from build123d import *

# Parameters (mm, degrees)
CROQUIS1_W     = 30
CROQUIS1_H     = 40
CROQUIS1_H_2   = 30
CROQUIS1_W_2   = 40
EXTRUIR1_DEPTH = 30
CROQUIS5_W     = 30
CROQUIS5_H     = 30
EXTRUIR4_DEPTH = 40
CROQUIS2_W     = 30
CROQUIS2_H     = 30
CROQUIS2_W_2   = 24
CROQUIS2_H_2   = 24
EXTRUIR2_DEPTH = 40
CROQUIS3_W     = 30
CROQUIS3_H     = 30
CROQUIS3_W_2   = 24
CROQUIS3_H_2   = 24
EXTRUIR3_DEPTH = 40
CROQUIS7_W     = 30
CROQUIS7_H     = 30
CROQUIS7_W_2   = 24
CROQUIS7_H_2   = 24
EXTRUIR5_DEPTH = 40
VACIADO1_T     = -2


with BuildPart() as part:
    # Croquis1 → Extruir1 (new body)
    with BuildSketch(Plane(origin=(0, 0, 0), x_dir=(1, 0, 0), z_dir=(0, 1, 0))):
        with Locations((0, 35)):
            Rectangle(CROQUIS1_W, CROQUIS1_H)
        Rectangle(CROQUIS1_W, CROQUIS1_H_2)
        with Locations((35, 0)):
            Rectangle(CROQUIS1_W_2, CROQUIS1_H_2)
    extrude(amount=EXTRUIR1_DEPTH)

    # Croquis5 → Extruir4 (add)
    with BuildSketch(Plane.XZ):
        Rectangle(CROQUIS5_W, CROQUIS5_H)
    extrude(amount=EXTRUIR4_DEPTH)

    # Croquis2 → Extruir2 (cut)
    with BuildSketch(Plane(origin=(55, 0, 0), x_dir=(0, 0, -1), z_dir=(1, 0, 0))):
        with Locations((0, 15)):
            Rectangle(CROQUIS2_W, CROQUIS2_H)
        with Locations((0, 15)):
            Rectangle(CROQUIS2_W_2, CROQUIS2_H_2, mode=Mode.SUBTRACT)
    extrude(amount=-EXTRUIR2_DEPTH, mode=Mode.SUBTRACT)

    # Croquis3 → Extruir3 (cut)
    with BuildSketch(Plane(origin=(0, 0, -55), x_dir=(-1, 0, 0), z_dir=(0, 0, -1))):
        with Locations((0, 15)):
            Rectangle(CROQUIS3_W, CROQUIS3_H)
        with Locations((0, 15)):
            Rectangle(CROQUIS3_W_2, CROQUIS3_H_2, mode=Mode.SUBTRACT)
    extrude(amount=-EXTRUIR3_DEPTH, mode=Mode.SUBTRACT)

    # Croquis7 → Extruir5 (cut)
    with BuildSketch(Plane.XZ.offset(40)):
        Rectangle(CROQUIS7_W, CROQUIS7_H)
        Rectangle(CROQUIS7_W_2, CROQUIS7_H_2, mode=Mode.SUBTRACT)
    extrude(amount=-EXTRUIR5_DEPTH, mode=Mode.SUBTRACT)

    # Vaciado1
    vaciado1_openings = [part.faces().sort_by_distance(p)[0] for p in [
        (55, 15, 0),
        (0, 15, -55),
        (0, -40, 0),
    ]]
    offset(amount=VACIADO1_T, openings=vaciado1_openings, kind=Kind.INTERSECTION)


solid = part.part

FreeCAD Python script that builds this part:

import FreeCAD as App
import Part
import Sketcher

V = App.Vector
Q = App.Units.Quantity


def faces_at(feature, points):
    """Names of the faces that lie closest to the given points."""
    faces = feature.Shape.Faces
    near = lambda p: min(range(len(faces)), key=lambda i: faces[i].distToShape(Part.Vertex(*p))[0])
    return sorted({f"Face{near(p) + 1}" for p in points})


def add_polygon(sketch, points):
    """Adds a closed chain of lines whose ends are joined by coincident constraints."""
    first, n = sketch.GeometryCount, len(points)
    for a, b in zip(points, points[1:] + points[:1]):
        sketch.addGeometry(Part.LineSegment(App.Vector(*a, 0), App.Vector(*b, 0)), False)
    for i in range(n):
        sketch.addConstraint(Sketcher.Constraint("Coincident", first + i, 2, first + (i + 1) % n, 1))

doc = App.newDocument("Part")
body = doc.addObject("PartDesign::Body", "Body")

sketch1 = body.newObject("Sketcher::SketchObject", "Sketch")
sketch1.AttachmentSupport = (doc.getObject("XZ_Plane"), [""])
sketch1.MapMode = "FlatFace"
add_polygon(sketch1, [(-15, -55), (-15, 15), (55, 15), (55, -15), (15, -15), (15, -55)])
sketch1.addConstraint(Sketcher.Constraint("Vertical", 0))
sketch1.addConstraint(Sketcher.Constraint("Horizontal", 1))
sketch1.addConstraint(Sketcher.Constraint("Vertical", 2))
sketch1.addConstraint(Sketcher.Constraint("Horizontal", 3))
sketch1.addConstraint(Sketcher.Constraint("Vertical", 4))
sketch1.addConstraint(Sketcher.Constraint("Horizontal", 5))
sketch1.addConstraint(Sketcher.Constraint("Symmetric", 0, 2, 3, 2, -1, 1))
sketch1.addConstraint(Sketcher.Constraint("Equal", 1, 0))
sketch1.addConstraint(Sketcher.Constraint("Equal", 5, 2))
sketch1.addConstraint(Sketcher.Constraint("DistanceX", 1, 1, 1, 2, Q("70 mm")))
sketch1.addConstraint(Sketcher.Constraint("DistanceX", 3, 2, 3, 1, Q("40 mm")))
pad1 = body.newObject("PartDesign::Pad", "Pad")
pad1.Profile = sketch1
pad1.Length = 30
pad1.Reversed = True

sketch2 = body.newObject("Sketcher::SketchObject", "Sketch001")
sketch2.AttachmentSupport = (doc.getObject("XZ_Plane"), [""])
sketch2.MapMode = "FlatFace"
add_polygon(sketch2, [(-15, 15), (-15, -15), (15, -15), (15, 15)])
sketch2.addConstraint(Sketcher.Constraint("Vertical", 0))
sketch2.addConstraint(Sketcher.Constraint("Horizontal", 1))
sketch2.addConstraint(Sketcher.Constraint("Vertical", 2))
sketch2.addConstraint(Sketcher.Constraint("Horizontal", 3))
sketch2.addConstraint(Sketcher.Constraint("Symmetric", 0, 2, 2, 2, -1, 1))
sketch2.addConstraint(Sketcher.Constraint("Equal", 3, 0))
sketch2.addConstraint(Sketcher.Constraint("DistanceX", 1, 1, 1, 2, Q("30 mm")))
pad2 = body.newObject("PartDesign::Pad", "Pad001")
pad2.Profile = sketch2
pad2.Length = 40

sketch3 = body.newObject("Sketcher::SketchObject", "Sketch002")
sketch3.AttachmentSupport = (doc.getObject("YZ_Plane"), [""])
sketch3.MapMode = "FlatFace"
sketch3.AttachmentOffset = App.Placement(V(0, 0, 55), App.Rotation())
add_polygon(sketch3, [(30, 15), (0, 15), (0, -15), (30, -15)])
add_polygon(sketch3, [(3, -12), (3, 12), (27, 12), (27, -12)])
sketch3.addConstraint(Sketcher.Constraint("Horizontal", 0))
sketch3.addConstraint(Sketcher.Constraint("Vertical", 1))
sketch3.addConstraint(Sketcher.Constraint("Horizontal", 2))
sketch3.addConstraint(Sketcher.Constraint("Vertical", 3))
sketch3.addConstraint(Sketcher.Constraint("Vertical", 4))
sketch3.addConstraint(Sketcher.Constraint("Horizontal", 5))
sketch3.addConstraint(Sketcher.Constraint("Vertical", 6))
sketch3.addConstraint(Sketcher.Constraint("Horizontal", 7))
sketch3.addConstraint(Sketcher.Constraint("Symmetric", 0, 2, 1, 2, -1, 1))
sketch3.addConstraint(Sketcher.Constraint("Equal", 2, 1))
sketch3.addConstraint(Sketcher.Constraint("Equal", 7, 4))
sketch3.addConstraint(Sketcher.Constraint("DistanceX", 0, 2, 0, 1, Q("30 mm")))
sketch3.addConstraint(Sketcher.Constraint("DistanceX", 5, 1, 5, 2, Q("24 mm")))
sketch3.addConstraint(Sketcher.Constraint("DistanceX", -1, 1, 4, 2, Q("3 mm")))
sketch3.addConstraint(Sketcher.Constraint("DistanceY", -1, 1, 4, 2, Q("12 mm")))
pocket1 = body.newObject("PartDesign::Pocket", "Pocket")
pocket1.Profile = sketch3
pocket1.Length = 40

sketch4 = body.newObject("Sketcher::SketchObject", "Sketch003")
sketch4.AttachmentSupport = (doc.getObject("XY_Plane"), [""])
sketch4.MapMode = "FlatFace"
sketch4.AttachmentOffset = App.Placement(V(0, 0, -55), App.Rotation())
add_polygon(sketch4, [(15, 30), (15, 0), (-15, 0), (-15, 30)])
add_polygon(sketch4, [(-12, 3), (12, 3), (12, 27), (-12, 27)])
sketch4.addConstraint(Sketcher.Constraint("Vertical", 0))
sketch4.addConstraint(Sketcher.Constraint("Horizontal", 1))
sketch4.addConstraint(Sketcher.Constraint("Vertical", 2))
sketch4.addConstraint(Sketcher.Constraint("Horizontal", 3))
sketch4.addConstraint(Sketcher.Constraint("Horizontal", 4))
sketch4.addConstraint(Sketcher.Constraint("Vertical", 5))
sketch4.addConstraint(Sketcher.Constraint("Horizontal", 6))
sketch4.addConstraint(Sketcher.Constraint("Vertical", 7))
sketch4.addConstraint(Sketcher.Constraint("Symmetric", 0, 2, 1, 2, -1, 1))
sketch4.addConstraint(Sketcher.Constraint("Equal", 3, 0))
sketch4.addConstraint(Sketcher.Constraint("Equal", 6, 5))
sketch4.addConstraint(Sketcher.Constraint("DistanceX", 1, 2, 1, 1, Q("30 mm")))
sketch4.addConstraint(Sketcher.Constraint("DistanceX", 4, 1, 4, 2, Q("24 mm")))
sketch4.addConstraint(Sketcher.Constraint("DistanceX", -1, 1, 4, 2, Q("12 mm")))
sketch4.addConstraint(Sketcher.Constraint("DistanceY", -1, 1, 4, 2, Q("3 mm")))
pocket2 = body.newObject("PartDesign::Pocket", "Pocket001")
pocket2.Profile = sketch4
pocket2.Length = 40
pocket2.Reversed = True

sketch5 = body.newObject("Sketcher::SketchObject", "Sketch004")
sketch5.AttachmentSupport = (doc.getObject("XZ_Plane"), [""])
sketch5.MapMode = "FlatFace"
sketch5.AttachmentOffset = App.Placement(V(0, 0, 40), App.Rotation())
add_polygon(sketch5, [(-15, 15), (-15, -15), (15, -15), (15, 15)])
add_polygon(sketch5, [(12, -12), (-12, -12), (-12, 12), (12, 12)])
sketch5.addConstraint(Sketcher.Constraint("Vertical", 0))
sketch5.addConstraint(Sketcher.Constraint("Horizontal", 1))
sketch5.addConstraint(Sketcher.Constraint("Vertical", 2))
sketch5.addConstraint(Sketcher.Constraint("Horizontal", 3))
sketch5.addConstraint(Sketcher.Constraint("Horizontal", 4))
sketch5.addConstraint(Sketcher.Constraint("Vertical", 5))
sketch5.addConstraint(Sketcher.Constraint("Horizontal", 6))
sketch5.addConstraint(Sketcher.Constraint("Vertical", 7))
sketch5.addConstraint(Sketcher.Constraint("Symmetric", 0, 2, 2, 2, -1, 1))
sketch5.addConstraint(Sketcher.Constraint("Symmetric", 4, 2, 6, 2, -1, 1))
sketch5.addConstraint(Sketcher.Constraint("Equal", 3, 0))
sketch5.addConstraint(Sketcher.Constraint("Equal", 6, 5))
sketch5.addConstraint(Sketcher.Constraint("DistanceX", 1, 1, 1, 2, Q("30 mm")))
sketch5.addConstraint(Sketcher.Constraint("DistanceX", 4, 2, 4, 1, Q("24 mm")))
pocket3 = body.newObject("PartDesign::Pocket", "Pocket002")
pocket3.Profile = sketch5
pocket3.Length = 40
doc.recompute()

thickness = body.newObject("PartDesign::Thickness", "Thickness")
thickness.Base = (pocket3, faces_at(pocket3, [(55, 15, 0), (0, 15, -55), (0, -40, 0)]))
thickness.Value = 2
thickness.Reversed = True
thickness.Join = "Intersection"

doc.recompute()
